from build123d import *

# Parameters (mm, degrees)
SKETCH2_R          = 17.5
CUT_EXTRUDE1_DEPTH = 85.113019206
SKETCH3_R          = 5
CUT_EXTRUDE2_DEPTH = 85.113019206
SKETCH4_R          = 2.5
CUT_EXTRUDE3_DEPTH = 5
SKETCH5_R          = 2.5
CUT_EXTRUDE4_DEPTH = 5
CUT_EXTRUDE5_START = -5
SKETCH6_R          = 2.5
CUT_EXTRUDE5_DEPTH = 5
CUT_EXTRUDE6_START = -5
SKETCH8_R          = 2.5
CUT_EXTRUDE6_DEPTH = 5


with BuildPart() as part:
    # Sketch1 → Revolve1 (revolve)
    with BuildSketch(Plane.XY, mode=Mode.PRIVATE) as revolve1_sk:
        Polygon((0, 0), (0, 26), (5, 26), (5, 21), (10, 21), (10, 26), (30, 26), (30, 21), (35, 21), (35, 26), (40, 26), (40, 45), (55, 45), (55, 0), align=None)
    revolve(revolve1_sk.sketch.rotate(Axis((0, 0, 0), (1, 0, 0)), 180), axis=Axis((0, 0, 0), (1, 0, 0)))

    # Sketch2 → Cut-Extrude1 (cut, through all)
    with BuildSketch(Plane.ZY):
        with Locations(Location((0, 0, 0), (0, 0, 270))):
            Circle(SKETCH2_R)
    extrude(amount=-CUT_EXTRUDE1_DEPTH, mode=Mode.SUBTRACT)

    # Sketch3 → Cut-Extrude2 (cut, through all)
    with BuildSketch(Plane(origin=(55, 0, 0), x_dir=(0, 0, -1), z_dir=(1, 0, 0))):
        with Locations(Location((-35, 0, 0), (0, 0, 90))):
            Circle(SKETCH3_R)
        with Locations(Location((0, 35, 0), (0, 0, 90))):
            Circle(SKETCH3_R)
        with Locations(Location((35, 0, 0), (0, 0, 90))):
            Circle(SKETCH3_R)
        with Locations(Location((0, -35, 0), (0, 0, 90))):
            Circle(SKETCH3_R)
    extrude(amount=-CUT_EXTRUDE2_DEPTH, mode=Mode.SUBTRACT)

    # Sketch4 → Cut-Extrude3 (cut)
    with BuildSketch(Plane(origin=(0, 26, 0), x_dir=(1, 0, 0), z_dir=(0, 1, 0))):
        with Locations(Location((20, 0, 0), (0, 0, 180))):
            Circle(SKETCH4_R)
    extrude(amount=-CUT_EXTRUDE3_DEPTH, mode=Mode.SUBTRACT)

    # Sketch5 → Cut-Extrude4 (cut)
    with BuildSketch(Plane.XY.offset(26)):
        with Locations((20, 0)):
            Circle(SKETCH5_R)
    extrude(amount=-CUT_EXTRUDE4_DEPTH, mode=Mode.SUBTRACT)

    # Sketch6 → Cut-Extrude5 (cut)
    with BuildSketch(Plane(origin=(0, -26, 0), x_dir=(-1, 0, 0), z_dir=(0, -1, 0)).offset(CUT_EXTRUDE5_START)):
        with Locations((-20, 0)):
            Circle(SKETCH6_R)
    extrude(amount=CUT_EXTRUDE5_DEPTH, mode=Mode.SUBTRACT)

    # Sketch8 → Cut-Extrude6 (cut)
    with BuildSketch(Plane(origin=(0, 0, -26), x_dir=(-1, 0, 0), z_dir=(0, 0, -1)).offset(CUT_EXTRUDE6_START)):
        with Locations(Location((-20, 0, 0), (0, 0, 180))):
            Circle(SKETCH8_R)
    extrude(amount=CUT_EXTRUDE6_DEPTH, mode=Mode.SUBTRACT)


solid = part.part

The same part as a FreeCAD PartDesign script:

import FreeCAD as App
import Part
import Sketcher

V = App.Vector
Q = App.Units.Quantity


def add_polygon(sketch, points):
    """Adds a closed chain of lines whose ends are joined by coincident constraints."""
    first, n = sketch.GeometryCount, len(points)
    for a, b in zip(points, points[1:] + points[:1]):
        sketch.addGeometry(Part.LineSegment(App.Vector(*a, 0), App.Vector(*b, 0)), False)
    for i in range(n):
        sketch.addConstraint(Sketcher.Constraint("Coincident", first + i, 2, first + (i + 1) % n, 1))

doc = App.newDocument("Part")
body = doc.addObject("PartDesign::Body", "Body")

sketch1 = body.newObject("Sketcher::SketchObject", "Sketch")
sketch1.AttachmentSupport = (doc.getObject("XY_Plane"), [""])
sketch1.MapMode = "FlatFace"
add_polygon(sketch1, [(0, 26), (0, 0), (55, 0), (55, 45), (40, 45), (40, 26), (35, 26), (35, 21), (30, 21), (30, 26), (10, 26), (10, 21), (5, 21), (5, 26)])
sketch1.addConstraint(Sketcher.Constraint("Vertical", 0))
sketch1.addConstraint(Sketcher.Constraint("Horizontal", 1))
sketch1.addConstraint(Sketcher.Constraint("Vertical", 2))
sketch1.addConstraint(Sketcher.Constraint("Horizontal", 3))
sketch1.addConstraint(Sketcher.Constraint("Vertical", 4))
sketch1.addConstraint(Sketcher.Constraint("Horizontal", 5))
sketch1.addConstraint(Sketcher.Constraint("Vertical", 6))
sketch1.addConstraint(Sketcher.Constraint("Horizontal", 7))
sketch1.addConstraint(Sketcher.Constraint("Vertical", 8))
sketch1.addConstraint(Sketcher.Constraint("Horizontal", 9))
sketch1.addConstraint(Sketcher.Constraint("Vertical", 10))
sketch1.addConstraint(Sketcher.Constraint("Horizontal", 11))
sketch1.addConstraint(Sketcher.Constraint("Vertical", 12))
sketch1.addConstraint(Sketcher.Constraint("Horizontal", 13))
sketch1.addConstraint(Sketcher.Constraint("Coincident", 0, 2, -1, 1))
sketch1.addConstraint(Sketcher.Constraint("Horizontal", 5, 2, 8, 2))
sketch1.addConstraint(Sketcher.Constraint("Horizontal", 7, 2, 10, 2))
sketch1.addConstraint(Sketcher.Constraint("Horizontal", 9, 2, 12, 2))
sketch1.addConstraint(Sketcher.Constraint("Equal", 5, 7))
sketch1.addConstraint(Sketcher.Constraint("Equal", 7, 11))
sketch1.addConstraint(Sketcher.Constraint("Equal", 11, 13))
sketch1.addConstraint(Sketcher.Constraint("Equal", 13, 6))
sketch1.addConstraint(Sketcher.Constraint("DistanceX", 1, 1, 1, 2, Q("55 mm")))
sketch1.addConstraint(Sketcher.Constraint("DistanceX", 3, 2, 3, 1, Q("15 mm")))
sketch1.addConstraint(Sketcher.Constraint("DistanceX", 5, 2, 5, 1, Q("5 mm")))
sketch1.addConstraint(Sketcher.Constraint("DistanceY", 0, 2, 0, 1, Q("26 mm")))
sketch1.addConstraint(Sketcher.Constraint("DistanceY", 2, 1, 2, 2, Q("45 mm")))
revolution = body.newObject("PartDesign::Revolution", "Revolution")
revolution.Profile = sketch1
revolution.ReferenceAxis = (sketch1, ["H_Axis"])
revolution.Angle = 360

sketch2 = body.newObject("Sketcher::SketchObject", "Sketch001")
sketch2.AttachmentSupport = (doc.getObject("YZ_Plane"), [""])
sketch2.MapMode = "FlatFace"
sketch2.addGeometry(Part.Circle(V(0, 0, 0), V(0, 0, 1), 17.5), False)
sketch2.addConstraint(Sketcher.Constraint("Coincident", 0, 3, -1, 1))
sketch2.addConstraint(Sketcher.Constraint("Diameter", 0, Q("35 mm")))
pocket1 = body.newObject("PartDesign::Pocket", "Pocket")
pocket1.Profile = sketch2
pocket1.Type = "ThroughAll"
pocket1.Reversed = True

sketch3 = body.newObject("Sketcher::SketchObject", "Sketch002")
sketch3.AttachmentSupport = (doc.getObject("YZ_Plane"), [""])
sketch3.MapMode = "FlatFace"
sketch3.AttachmentOffset = App.Placement(V(0, 0, 55), App.Rotation())
sketch3.addGeometry(Part.Circle(V(0, 35, 0), V(0, 0, 1), 5), False)
sketch3.addGeometry(Part.Circle(V(35, 0, 0), V(0, 0, 1), 5), False)
sketch3.addGeometry(Part.Circle(V(0, -35, 0), V(0, 0, 1), 5), False)
sketch3.addGeometry(Part.Circle(V(-35, 0, 0), V(0, 0, 1), 5), False)
sketch3.addConstraint(Sketcher.Constraint("Equal", 0, 1))
sketch3.addConstraint(Sketcher.Constraint("Equal", 1, 2))
sketch3.addConstraint(Sketcher.Constraint("Equal", 2, 3))
sketch3.addConstraint(Sketcher.Constraint("Symmetric", 0, 3, 2, 3, -1, 1))
sketch3.addConstraint(Sketcher.Constraint("Symmetric", 1, 3, 3, 3, -1, 1))
sketch3.addConstraint(Sketcher.Constraint("PointOnObject", 0, 3, -2))
sketch3.addConstraint(Sketcher.Constraint("PointOnObject", 1, 3, -1))
sketch3.addConstraint(Sketcher.Constraint("Diameter", 0, Q("10 mm")))
sketch3.addConstraint(Sketcher.Constraint("DistanceY", -1, 1, 0, 3, Q("35 mm")))
sketch3.addConstraint(Sketcher.Constraint("DistanceX", -1, 1, 1, 3, Q("35 mm")))
pocket2 = body.newObject("PartDesign::Pocket", "Pocket001")
pocket2.Profile = sketch3
pocket2.Type = "ThroughAll"

sketch4 = body.newObject("Sketcher::SketchObject", "Sketch003")
sketch4.AttachmentSupport = (doc.getObject("XZ_Plane"), [""])
sketch4.MapMode = "FlatFace"
sketch4.AttachmentOffset = App.Placement(V(0, 0, -26), App.Rotation())
sketch4.addGeometry(Part.Circle(V(20, 0, 0), V(0, 0, 1), 2.5), False)
sketch4.addConstraint(Sketcher.Constraint("PointOnObject", 0, 3, -1))
sketch4.addConstraint(Sketcher.Constraint("Diameter", 0, Q("5 mm")))
sketch4.addConstraint(Sketcher.Constraint("DistanceX", -1, 1, 0, 3, Q("20 mm")))
pocket3 = body.newObject("PartDesign::Pocket", "Pocket002")
pocket3.Profile = sketch4
pocket3.Length = 5
pocket3.Reversed = True

sketch5 = body.newObject("Sketcher::SketchObject", "Sketch004")
sketch5.AttachmentSupport = (doc.getObject("XY_Plane"), [""])
sketch5.MapMode = "FlatFace"
sketch5.AttachmentOffset = App.Placement(V(0, 0, 26), App.Rotation())
sketch5.addGeometry(Part.Circle(V(20, 0, 0), V(0, 0, 1), 2.5), False)
sketch5.addConstraint(Sketcher.Constraint("PointOnObject", 0, 3, -1))
sketch5.addConstraint(Sketcher.Constraint("Diameter", 0, Q("5 mm")))
sketch5.addConstraint(Sketcher.Constraint("DistanceX", -1, 1, 0, 3, Q("20 mm")))
pocket4 = body.newObject("PartDesign::Pocket", "Pocket003")
pocket4.Profile = sketch5
pocket4.Length = 5

sketch6 = body.newObject("Sketcher::SketchObject", "Sketch005")
sketch6.AttachmentSupport = (doc.getObject("XZ_Plane"), [""])
sketch6.MapMode = "FlatFace"
sketch6.AttachmentOffset = App.Placement(V(0, 0, 21), App.Rotation())
sketch6.addGeometry(Part.Circle(V(20, 0, 0), V(0, 0, 1), 2.5), False)
sketch6.addConstraint(Sketcher.Constraint("PointOnObject", 0, 3, -1))
sketch6.addConstraint(Sketcher.Constraint("Diameter", 0, Q("5 mm")))
sketch6.addConstraint(Sketcher.Constraint("DistanceX", -1, 1, 0, 3, Q("20 mm")))
pocket5 = body.newObject("PartDesign::Pocket", "Pocket004")
pocket5.Profile = sketch6
pocket5.Length = 5
pocket5.Reversed = True

sketch7 = body.newObject("Sketcher::SketchObject", "Sketch006")
sketch7.AttachmentSupport = (doc.getObject("XY_Plane"), [""])
sketch7.MapMode = "FlatFace"
sketch7.AttachmentOffset = App.Placement(V(0, 0, -21), App.Rotation())
sketch7.addGeometry(Part.Circle(V(20, 0, 0), V(0, 0, 1), 2.5), False)
sketch7.addConstraint(Sketcher.Constraint("PointOnObject", 0, 3, -1))
sketch7.addConstraint(Sketcher.Constraint("Diameter", 0, Q("5 mm")))
sketch7.addConstraint(Sketcher.Constraint("DistanceX", -1, 1, 0, 3, Q("20 mm")))
pocket6 = body.newObject("PartDesign::Pocket", "Pocket005")
pocket6.Profile = sketch7
pocket6.Length = 5

doc.recompute()
